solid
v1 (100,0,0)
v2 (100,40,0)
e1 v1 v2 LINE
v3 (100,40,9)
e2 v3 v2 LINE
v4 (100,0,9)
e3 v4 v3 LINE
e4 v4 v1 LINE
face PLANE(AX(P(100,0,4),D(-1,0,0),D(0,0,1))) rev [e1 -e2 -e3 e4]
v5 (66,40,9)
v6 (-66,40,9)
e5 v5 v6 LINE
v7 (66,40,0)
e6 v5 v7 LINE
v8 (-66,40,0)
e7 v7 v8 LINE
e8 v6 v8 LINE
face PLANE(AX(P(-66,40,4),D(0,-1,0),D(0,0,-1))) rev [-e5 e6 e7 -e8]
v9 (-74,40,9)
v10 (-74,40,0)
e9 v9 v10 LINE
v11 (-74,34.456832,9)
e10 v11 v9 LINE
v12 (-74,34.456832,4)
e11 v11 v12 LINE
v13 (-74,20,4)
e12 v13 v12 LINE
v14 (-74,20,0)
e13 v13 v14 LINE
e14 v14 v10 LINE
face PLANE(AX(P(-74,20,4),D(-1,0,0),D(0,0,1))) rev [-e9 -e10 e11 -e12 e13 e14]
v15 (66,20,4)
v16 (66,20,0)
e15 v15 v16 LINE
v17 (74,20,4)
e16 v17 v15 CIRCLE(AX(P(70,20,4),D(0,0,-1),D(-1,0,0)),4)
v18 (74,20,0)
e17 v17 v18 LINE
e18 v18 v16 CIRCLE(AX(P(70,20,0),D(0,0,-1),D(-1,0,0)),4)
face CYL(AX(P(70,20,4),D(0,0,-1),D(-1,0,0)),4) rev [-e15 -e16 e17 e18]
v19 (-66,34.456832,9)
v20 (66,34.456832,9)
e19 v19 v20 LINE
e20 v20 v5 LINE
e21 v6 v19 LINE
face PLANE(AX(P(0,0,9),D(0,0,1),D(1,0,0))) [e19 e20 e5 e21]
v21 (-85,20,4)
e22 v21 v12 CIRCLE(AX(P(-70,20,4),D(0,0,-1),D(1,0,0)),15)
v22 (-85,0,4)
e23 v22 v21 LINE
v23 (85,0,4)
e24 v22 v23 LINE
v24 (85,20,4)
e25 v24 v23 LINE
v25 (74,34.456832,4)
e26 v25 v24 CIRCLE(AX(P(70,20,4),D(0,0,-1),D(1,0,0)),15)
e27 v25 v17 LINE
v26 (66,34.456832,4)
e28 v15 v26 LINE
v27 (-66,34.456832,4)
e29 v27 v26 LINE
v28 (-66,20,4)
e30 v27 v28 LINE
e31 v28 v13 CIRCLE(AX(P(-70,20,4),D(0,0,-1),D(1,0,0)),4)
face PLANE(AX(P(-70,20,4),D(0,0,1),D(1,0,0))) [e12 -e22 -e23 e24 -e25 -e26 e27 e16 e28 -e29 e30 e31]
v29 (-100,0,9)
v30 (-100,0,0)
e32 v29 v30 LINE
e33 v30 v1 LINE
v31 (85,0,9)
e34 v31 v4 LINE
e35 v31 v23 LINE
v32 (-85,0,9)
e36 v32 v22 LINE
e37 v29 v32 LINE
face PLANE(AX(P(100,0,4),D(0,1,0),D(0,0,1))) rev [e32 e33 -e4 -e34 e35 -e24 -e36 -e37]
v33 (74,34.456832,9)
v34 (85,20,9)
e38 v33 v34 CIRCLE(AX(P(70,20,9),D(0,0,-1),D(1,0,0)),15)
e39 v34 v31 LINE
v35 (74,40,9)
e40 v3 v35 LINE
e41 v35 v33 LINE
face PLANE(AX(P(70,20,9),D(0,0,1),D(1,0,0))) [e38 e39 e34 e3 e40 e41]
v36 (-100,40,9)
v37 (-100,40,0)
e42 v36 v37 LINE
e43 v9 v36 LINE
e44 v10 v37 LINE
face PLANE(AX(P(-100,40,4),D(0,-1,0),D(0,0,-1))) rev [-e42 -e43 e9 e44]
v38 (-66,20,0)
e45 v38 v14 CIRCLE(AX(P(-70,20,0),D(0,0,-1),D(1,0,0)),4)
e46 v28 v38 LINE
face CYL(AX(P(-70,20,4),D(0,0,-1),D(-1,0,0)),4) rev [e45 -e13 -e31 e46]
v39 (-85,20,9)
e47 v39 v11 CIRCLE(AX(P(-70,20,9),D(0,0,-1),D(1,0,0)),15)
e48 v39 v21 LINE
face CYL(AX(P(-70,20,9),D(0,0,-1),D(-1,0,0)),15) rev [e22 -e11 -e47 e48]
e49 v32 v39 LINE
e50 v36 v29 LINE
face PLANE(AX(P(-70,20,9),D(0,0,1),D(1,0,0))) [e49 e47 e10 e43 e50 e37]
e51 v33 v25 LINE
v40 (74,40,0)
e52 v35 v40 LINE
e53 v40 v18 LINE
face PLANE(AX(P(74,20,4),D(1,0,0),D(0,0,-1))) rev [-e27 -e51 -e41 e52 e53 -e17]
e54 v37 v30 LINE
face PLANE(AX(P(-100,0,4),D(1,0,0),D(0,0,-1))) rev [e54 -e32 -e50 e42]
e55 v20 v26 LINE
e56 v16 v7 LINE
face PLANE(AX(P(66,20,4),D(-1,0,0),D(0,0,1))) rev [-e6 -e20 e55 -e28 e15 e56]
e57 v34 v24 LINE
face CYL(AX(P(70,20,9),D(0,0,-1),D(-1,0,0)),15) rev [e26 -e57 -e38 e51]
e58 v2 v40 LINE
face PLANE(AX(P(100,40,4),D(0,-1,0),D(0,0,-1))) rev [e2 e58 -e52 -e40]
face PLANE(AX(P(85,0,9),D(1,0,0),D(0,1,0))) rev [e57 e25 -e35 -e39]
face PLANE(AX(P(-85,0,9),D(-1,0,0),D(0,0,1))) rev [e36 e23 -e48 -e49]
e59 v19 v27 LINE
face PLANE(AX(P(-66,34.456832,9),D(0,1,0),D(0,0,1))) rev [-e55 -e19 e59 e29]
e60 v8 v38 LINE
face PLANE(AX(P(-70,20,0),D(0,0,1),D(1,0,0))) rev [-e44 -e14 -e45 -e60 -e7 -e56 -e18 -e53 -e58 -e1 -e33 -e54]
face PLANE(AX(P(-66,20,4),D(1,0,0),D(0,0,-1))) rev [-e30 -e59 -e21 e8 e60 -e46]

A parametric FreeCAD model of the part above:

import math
import FreeCAD as App
import Part
import Sketcher
Q = App.Units.Quantity


def add_polygon(sketch, points):
    """Adds a closed chain of lines whose ends are joined by coincident constraints."""
    first, n = sketch.GeometryCount, len(points)
    for a, b in zip(points, points[1:] + points[:1]):
        sketch.addGeometry(Part.LineSegment(App.Vector(*a, 0), App.Vector(*b, 0)), False)
    for i in range(n):
        sketch.addConstraint(Sketcher.Constraint("Coincident", first + i, 2, first + (i + 1) % n, 1))

doc = App.newDocument("Part")
params = doc.addObject("Spreadsheet::Sheet", "Params")
for row, (alias, value) in enumerate([
    ("sketch1_radius", "4 mm"),
    ("sketch1_width", "200 mm"),
    ("sketch1_width2", "26 mm"),
    ("sketch1_height", "40 mm"),
    ("sketch1_height2", "20 mm"),
    ("pad1_length", "4 mm"),
    ("sketch2_radius", "15 mm"),
    ("sketch2_width", "26 mm"),
    ("sketch2_width2", "15 mm"),
    ("sketch2_width3", "132 mm"),
    ("sketch2_height", "40 mm"),
    ("pad2_length", "5 mm"),
], start=1):
    params.set(f"A{row}", alias)
    params.set(f"B{row}", "=" + value)
    params.setAlias(f"B{row}", alias)

body = doc.addObject("PartDesign::Body", "Body")

sketch1 = body.newObject("Sketcher::SketchObject", "Sketch")
sketch1.AttachmentSupport = (doc.getObject("XY_Plane"), [""])
sketch1.MapMode = "FlatFace"
sketch1.addGeometry([
    Part.LineSegment(App.Vector(-100, 0, 0), App.Vector(100, 0, 0)),
    Part.LineSegment(App.Vector(100, 0, 0), App.Vector(100, 40, 0)),
    Part.LineSegment(App.Vector(100, 40, 0), App.Vector(74, 40, 0)),
    Part.LineSegment(App.Vector(74, 40, 0), App.Vector(74, 20, 0)),
    Part.ArcOfCircle(Part.Circle(App.Vector(70, 20, 0), App.Vector(0, 0, 1), 4), math.radians(180), math.radians(360)),
    Part.LineSegment(App.Vector(66, 20, 0), App.Vector(66, 40, 0)),
    Part.LineSegment(App.Vector(66, 40, 0), App.Vector(-66, 40, 0)),
    Part.LineSegment(App.Vector(-66, 40, 0), App.Vector(-66, 20, 0)),
    Part.ArcOfCircle(Part.Circle(App.Vector(-70, 20, 0), App.Vector(0, 0, 1), 4), math.radians(180), math.radians(360)),
    Part.LineSegment(App.Vector(-74, 20, 0), App.Vector(-74, 40, 0)),
    Part.LineSegment(App.Vector(-74, 40, 0), App.Vector(-100, 40, 0)),
    Part.LineSegment(App.Vector(-100, 40, 0), App.Vector(-100, 0, 0)),
], False)
sketch1.addConstraint([
    Sketcher.Constraint("Coincident", 0, 2, 1, 1),
    Sketcher.Constraint("Coincident", 1, 2, 2, 1),
    Sketcher.Constraint("Coincident", 2, 2, 3, 1),
    Sketcher.Constraint("Tangent", 3, 2, 4, 2),
    Sketcher.Constraint("Tangent", 4, 1, 5, 1),
    Sketcher.Constraint("Coincident", 5, 2, 6, 1),
    Sketcher.Constraint("Coincident", 6, 2, 7, 1),
    Sketcher.Constraint("Tangent", 7, 2, 8, 2),
    Sketcher.Constraint("Tangent", 8, 1, 9, 1),
    Sketcher.Constraint("Coincident", 9, 2, 10, 1),
    Sketcher.Constraint("Coincident", 10, 2, 11, 1),
    Sketcher.Constraint("Coincident", 11, 2, 0, 1),
    Sketcher.Constraint("Horizontal", 0),
    Sketcher.Constraint("Vertical", 1),
    Sketcher.Constraint("Horizontal", 2),
    Sketcher.Constraint("Vertical", 3),
    Sketcher.Constraint("Vertical", 5),
    Sketcher.Constraint("Horizontal", 6),
    Sketcher.Constraint("Vertical", 7),
    Sketcher.Constraint("Vertical", 9),
    Sketcher.Constraint("Horizontal", 10),
    Sketcher.Constraint("Vertical", 11),
    Sketcher.Constraint("Equal", 4, 8),
    Sketcher.Constraint("Symmetric", 0, 2, 11, 2, -1, 1),
    Sketcher.Constraint("Symmetric", 4, 3, 8, 3, -2),
    Sketcher.Constraint("Horizontal", 2, 2, 5, 2),
    Sketcher.Constraint("Horizontal", 6, 2, 9, 2),
    Sketcher.Constraint("Radius", 4, Q("4 mm")),
    Sketcher.Constraint("DistanceX", 0, 1, 0, 2, Q("200 mm")),
    Sketcher.Constraint("DistanceX", 2, 2, 2, 1, Q("26 mm")),
    Sketcher.Constraint("DistanceY", 1, 1, 1, 2, Q("40 mm")),
    Sketcher.Constraint("DistanceY", 3, 2, 3, 1, Q("20 mm")),
])
sketch1.setExpression("Constraints[27]", "Params.sketch1_radius")
sketch1.setExpression("Constraints[28]", "Params.sketch1_width")
sketch1.setExpression("Constraints[29]", "Params.sketch1_width2")
sketch1.setExpression("Constraints[30]", "Params.sketch1_height")
sketch1.setExpression("Constraints[31]", "Params.sketch1_height2")
pad1 = body.newObject("PartDesign::Pad", "Pad")
pad1.Profile = sketch1
pad1.setExpression("Length", "Params.pad1_length")

sketch2 = body.newObject("Sketcher::SketchObject", "Sketch001")
sketch2.AttachmentSupport = (doc.getObject("XY_Plane"), [""])
sketch2.MapMode = "FlatFace"
sketch2.AttachmentOffset = App.Placement(App.Vector(0, 0, 4), App.Rotation())
sketch2.addGeometry(Part.LineSegment(App.Vector(-74, 34.456832, 0), App.Vector(-74, 40, 0)), False)
sketch2.addGeometry(Part.LineSegment(App.Vector(-74, 40, 0), App.Vector(-100, 40, 0)), False)
sketch2.addGeometry(Part.LineSegment(App.Vector(-100, 40, 0), App.Vector(-100, 0, 0)), False)
sketch2.addGeometry(Part.LineSegment(App.Vector(-100, 0, 0), App.Vector(-85, 0, 0)), False)
sketch2.addGeometry(Part.LineSegment(App.Vector(-85, 0, 0), App.Vector(-85, 20, 0)), False)
sketch2.addGeometry(Part.ArcOfCircle(Part.Circle(App.Vector(-70, 20, 0), App.Vector(0, 0, 1), 15), math.radians(105.46601), math.radians(180)), False)
add_polygon(sketch2, [(-66, 40), (-66, 34.456832), (66, 34.456832), (66, 40)])
sketch2.addGeometry(Part.LineSegment(App.Vector(74, 40, 0), App.Vector(74, 34.456832, 0)), False)
sketch2.addGeometry(Part.ArcOfCircle(Part.Circle(App.Vector(70, 20, 0), App.Vector(0, 0, 1), 15), math.radians(0), math.radians(74.53399)), False)
sketch2.addGeometry(Part.LineSegment(App.Vector(85, 20, 0), App.Vector(85, 0, 0)), False)
sketch2.addGeometry(Part.LineSegment(App.Vector(85, 0, 0), App.Vector(100, 0, 0)), False)
sketch2.addGeometry(Part.LineSegment(App.Vector(100, 0, 0), App.Vector(100, 40, 0)), False)
sketch2.addGeometry(Part.LineSegment(App.Vector(100, 40, 0), App.Vector(74, 40, 0)), False)
sketch2.addConstraint([
    Sketcher.Constraint("Coincident", 0, 2, 1, 1),
    Sketcher.Constraint("Coincident", 1, 2, 2, 1),
    Sketcher.Constraint("Coincident", 2, 2, 3, 1),
    Sketcher.Constraint("Coincident", 3, 2, 4, 1),
    Sketcher.Constraint("Tangent", 4, 2, 5, 2),
    Sketcher.Constraint("Coincident", 5, 1, 0, 1),
    Sketcher.Constraint("Coincident", 10, 2, 11, 2),
    Sketcher.Constraint("Tangent", 11, 1, 12, 1),
    Sketcher.Constraint("Coincident", 12, 2, 13, 1),
    Sketcher.Constraint("Coincident", 13, 2, 14, 1),
    Sketcher.Constraint("Coincident", 14, 2, 15, 1),
    Sketcher.Constraint("Coincident", 15, 2, 10, 1),
    Sketcher.Constraint("Vertical", 0),
    Sketcher.Constraint("Horizontal", 1),
    Sketcher.Constraint("Vertical", 2),
    Sketcher.Constraint("Horizontal", 3),
    Sketcher.Constraint("Vertical", 4),
    Sketcher.Constraint("Vertical", 6),
    Sketcher.Constraint("Horizontal", 7),
    Sketcher.Constraint("Vertical", 8),
    Sketcher.Constraint("Horizontal", 9),
    Sketcher.Constraint("Vertical", 10),
    Sketcher.Constraint("Vertical", 12),
    Sketcher.Constraint("Horizontal", 13),
    Sketcher.Constraint("Vertical", 14),
    Sketcher.Constraint("Horizontal", 15),
    Sketcher.Constraint("Equal", 5, 11),
    Sketcher.Constraint("Symmetric", 3, 2, 12, 2, -1, 1),
    Sketcher.Constraint("Symmetric", 5, 1, 10, 2, -2),
    Sketcher.Constraint("Symmetric", 2, 2, 13, 2, -2),
    Sketcher.Constraint("Horizontal", 5, 1, 6, 2),
    Sketcher.Constraint("Horizontal", 1, 2, 8, 2),
    Sketcher.Constraint("Horizontal", 9, 2, 14, 2),
    Sketcher.Constraint("Radius", 5, Q("15 mm")),
    Sketcher.Constraint("DistanceX", 1, 2, 1, 1, Q("26 mm")),
    Sketcher.Constraint("DistanceX", 3, 1, 3, 2, Q("15 mm")),
    Sketcher.Constraint("DistanceX", 7, 1, 7, 2, Q("132 mm")),
    Sketcher.Constraint("DistanceY", 2, 2, 2, 1, Q("40 mm")),
    Sketcher.Constraint("DistanceY", 4, 1, 4, 2, Q("20 mm")),
    Sketcher.Constraint("DistanceX", 5, 3, -1, 1, Q("70 mm")),
    Sketcher.Constraint("DistanceX", 6, 2, -1, 1, Q("66 mm")),
])
sketch2.setExpression("Constraints[37]", "Params.sketch2_radius")
sketch2.setExpression("Constraints[38]", "Params.sketch2_width")
sketch2.setExpression("Constraints[39]", "Params.sketch2_width2")
sketch2.setExpression("Constraints[40]", "Params.sketch2_width3")
sketch2.setExpression("Constraints[41]", "Params.sketch2_height")
pad2 = body.newObject("PartDesign::Pad", "Pad001")
pad2.Profile = sketch2
pad2.setExpression("Length", "Params.pad2_length")

doc.recompute()
